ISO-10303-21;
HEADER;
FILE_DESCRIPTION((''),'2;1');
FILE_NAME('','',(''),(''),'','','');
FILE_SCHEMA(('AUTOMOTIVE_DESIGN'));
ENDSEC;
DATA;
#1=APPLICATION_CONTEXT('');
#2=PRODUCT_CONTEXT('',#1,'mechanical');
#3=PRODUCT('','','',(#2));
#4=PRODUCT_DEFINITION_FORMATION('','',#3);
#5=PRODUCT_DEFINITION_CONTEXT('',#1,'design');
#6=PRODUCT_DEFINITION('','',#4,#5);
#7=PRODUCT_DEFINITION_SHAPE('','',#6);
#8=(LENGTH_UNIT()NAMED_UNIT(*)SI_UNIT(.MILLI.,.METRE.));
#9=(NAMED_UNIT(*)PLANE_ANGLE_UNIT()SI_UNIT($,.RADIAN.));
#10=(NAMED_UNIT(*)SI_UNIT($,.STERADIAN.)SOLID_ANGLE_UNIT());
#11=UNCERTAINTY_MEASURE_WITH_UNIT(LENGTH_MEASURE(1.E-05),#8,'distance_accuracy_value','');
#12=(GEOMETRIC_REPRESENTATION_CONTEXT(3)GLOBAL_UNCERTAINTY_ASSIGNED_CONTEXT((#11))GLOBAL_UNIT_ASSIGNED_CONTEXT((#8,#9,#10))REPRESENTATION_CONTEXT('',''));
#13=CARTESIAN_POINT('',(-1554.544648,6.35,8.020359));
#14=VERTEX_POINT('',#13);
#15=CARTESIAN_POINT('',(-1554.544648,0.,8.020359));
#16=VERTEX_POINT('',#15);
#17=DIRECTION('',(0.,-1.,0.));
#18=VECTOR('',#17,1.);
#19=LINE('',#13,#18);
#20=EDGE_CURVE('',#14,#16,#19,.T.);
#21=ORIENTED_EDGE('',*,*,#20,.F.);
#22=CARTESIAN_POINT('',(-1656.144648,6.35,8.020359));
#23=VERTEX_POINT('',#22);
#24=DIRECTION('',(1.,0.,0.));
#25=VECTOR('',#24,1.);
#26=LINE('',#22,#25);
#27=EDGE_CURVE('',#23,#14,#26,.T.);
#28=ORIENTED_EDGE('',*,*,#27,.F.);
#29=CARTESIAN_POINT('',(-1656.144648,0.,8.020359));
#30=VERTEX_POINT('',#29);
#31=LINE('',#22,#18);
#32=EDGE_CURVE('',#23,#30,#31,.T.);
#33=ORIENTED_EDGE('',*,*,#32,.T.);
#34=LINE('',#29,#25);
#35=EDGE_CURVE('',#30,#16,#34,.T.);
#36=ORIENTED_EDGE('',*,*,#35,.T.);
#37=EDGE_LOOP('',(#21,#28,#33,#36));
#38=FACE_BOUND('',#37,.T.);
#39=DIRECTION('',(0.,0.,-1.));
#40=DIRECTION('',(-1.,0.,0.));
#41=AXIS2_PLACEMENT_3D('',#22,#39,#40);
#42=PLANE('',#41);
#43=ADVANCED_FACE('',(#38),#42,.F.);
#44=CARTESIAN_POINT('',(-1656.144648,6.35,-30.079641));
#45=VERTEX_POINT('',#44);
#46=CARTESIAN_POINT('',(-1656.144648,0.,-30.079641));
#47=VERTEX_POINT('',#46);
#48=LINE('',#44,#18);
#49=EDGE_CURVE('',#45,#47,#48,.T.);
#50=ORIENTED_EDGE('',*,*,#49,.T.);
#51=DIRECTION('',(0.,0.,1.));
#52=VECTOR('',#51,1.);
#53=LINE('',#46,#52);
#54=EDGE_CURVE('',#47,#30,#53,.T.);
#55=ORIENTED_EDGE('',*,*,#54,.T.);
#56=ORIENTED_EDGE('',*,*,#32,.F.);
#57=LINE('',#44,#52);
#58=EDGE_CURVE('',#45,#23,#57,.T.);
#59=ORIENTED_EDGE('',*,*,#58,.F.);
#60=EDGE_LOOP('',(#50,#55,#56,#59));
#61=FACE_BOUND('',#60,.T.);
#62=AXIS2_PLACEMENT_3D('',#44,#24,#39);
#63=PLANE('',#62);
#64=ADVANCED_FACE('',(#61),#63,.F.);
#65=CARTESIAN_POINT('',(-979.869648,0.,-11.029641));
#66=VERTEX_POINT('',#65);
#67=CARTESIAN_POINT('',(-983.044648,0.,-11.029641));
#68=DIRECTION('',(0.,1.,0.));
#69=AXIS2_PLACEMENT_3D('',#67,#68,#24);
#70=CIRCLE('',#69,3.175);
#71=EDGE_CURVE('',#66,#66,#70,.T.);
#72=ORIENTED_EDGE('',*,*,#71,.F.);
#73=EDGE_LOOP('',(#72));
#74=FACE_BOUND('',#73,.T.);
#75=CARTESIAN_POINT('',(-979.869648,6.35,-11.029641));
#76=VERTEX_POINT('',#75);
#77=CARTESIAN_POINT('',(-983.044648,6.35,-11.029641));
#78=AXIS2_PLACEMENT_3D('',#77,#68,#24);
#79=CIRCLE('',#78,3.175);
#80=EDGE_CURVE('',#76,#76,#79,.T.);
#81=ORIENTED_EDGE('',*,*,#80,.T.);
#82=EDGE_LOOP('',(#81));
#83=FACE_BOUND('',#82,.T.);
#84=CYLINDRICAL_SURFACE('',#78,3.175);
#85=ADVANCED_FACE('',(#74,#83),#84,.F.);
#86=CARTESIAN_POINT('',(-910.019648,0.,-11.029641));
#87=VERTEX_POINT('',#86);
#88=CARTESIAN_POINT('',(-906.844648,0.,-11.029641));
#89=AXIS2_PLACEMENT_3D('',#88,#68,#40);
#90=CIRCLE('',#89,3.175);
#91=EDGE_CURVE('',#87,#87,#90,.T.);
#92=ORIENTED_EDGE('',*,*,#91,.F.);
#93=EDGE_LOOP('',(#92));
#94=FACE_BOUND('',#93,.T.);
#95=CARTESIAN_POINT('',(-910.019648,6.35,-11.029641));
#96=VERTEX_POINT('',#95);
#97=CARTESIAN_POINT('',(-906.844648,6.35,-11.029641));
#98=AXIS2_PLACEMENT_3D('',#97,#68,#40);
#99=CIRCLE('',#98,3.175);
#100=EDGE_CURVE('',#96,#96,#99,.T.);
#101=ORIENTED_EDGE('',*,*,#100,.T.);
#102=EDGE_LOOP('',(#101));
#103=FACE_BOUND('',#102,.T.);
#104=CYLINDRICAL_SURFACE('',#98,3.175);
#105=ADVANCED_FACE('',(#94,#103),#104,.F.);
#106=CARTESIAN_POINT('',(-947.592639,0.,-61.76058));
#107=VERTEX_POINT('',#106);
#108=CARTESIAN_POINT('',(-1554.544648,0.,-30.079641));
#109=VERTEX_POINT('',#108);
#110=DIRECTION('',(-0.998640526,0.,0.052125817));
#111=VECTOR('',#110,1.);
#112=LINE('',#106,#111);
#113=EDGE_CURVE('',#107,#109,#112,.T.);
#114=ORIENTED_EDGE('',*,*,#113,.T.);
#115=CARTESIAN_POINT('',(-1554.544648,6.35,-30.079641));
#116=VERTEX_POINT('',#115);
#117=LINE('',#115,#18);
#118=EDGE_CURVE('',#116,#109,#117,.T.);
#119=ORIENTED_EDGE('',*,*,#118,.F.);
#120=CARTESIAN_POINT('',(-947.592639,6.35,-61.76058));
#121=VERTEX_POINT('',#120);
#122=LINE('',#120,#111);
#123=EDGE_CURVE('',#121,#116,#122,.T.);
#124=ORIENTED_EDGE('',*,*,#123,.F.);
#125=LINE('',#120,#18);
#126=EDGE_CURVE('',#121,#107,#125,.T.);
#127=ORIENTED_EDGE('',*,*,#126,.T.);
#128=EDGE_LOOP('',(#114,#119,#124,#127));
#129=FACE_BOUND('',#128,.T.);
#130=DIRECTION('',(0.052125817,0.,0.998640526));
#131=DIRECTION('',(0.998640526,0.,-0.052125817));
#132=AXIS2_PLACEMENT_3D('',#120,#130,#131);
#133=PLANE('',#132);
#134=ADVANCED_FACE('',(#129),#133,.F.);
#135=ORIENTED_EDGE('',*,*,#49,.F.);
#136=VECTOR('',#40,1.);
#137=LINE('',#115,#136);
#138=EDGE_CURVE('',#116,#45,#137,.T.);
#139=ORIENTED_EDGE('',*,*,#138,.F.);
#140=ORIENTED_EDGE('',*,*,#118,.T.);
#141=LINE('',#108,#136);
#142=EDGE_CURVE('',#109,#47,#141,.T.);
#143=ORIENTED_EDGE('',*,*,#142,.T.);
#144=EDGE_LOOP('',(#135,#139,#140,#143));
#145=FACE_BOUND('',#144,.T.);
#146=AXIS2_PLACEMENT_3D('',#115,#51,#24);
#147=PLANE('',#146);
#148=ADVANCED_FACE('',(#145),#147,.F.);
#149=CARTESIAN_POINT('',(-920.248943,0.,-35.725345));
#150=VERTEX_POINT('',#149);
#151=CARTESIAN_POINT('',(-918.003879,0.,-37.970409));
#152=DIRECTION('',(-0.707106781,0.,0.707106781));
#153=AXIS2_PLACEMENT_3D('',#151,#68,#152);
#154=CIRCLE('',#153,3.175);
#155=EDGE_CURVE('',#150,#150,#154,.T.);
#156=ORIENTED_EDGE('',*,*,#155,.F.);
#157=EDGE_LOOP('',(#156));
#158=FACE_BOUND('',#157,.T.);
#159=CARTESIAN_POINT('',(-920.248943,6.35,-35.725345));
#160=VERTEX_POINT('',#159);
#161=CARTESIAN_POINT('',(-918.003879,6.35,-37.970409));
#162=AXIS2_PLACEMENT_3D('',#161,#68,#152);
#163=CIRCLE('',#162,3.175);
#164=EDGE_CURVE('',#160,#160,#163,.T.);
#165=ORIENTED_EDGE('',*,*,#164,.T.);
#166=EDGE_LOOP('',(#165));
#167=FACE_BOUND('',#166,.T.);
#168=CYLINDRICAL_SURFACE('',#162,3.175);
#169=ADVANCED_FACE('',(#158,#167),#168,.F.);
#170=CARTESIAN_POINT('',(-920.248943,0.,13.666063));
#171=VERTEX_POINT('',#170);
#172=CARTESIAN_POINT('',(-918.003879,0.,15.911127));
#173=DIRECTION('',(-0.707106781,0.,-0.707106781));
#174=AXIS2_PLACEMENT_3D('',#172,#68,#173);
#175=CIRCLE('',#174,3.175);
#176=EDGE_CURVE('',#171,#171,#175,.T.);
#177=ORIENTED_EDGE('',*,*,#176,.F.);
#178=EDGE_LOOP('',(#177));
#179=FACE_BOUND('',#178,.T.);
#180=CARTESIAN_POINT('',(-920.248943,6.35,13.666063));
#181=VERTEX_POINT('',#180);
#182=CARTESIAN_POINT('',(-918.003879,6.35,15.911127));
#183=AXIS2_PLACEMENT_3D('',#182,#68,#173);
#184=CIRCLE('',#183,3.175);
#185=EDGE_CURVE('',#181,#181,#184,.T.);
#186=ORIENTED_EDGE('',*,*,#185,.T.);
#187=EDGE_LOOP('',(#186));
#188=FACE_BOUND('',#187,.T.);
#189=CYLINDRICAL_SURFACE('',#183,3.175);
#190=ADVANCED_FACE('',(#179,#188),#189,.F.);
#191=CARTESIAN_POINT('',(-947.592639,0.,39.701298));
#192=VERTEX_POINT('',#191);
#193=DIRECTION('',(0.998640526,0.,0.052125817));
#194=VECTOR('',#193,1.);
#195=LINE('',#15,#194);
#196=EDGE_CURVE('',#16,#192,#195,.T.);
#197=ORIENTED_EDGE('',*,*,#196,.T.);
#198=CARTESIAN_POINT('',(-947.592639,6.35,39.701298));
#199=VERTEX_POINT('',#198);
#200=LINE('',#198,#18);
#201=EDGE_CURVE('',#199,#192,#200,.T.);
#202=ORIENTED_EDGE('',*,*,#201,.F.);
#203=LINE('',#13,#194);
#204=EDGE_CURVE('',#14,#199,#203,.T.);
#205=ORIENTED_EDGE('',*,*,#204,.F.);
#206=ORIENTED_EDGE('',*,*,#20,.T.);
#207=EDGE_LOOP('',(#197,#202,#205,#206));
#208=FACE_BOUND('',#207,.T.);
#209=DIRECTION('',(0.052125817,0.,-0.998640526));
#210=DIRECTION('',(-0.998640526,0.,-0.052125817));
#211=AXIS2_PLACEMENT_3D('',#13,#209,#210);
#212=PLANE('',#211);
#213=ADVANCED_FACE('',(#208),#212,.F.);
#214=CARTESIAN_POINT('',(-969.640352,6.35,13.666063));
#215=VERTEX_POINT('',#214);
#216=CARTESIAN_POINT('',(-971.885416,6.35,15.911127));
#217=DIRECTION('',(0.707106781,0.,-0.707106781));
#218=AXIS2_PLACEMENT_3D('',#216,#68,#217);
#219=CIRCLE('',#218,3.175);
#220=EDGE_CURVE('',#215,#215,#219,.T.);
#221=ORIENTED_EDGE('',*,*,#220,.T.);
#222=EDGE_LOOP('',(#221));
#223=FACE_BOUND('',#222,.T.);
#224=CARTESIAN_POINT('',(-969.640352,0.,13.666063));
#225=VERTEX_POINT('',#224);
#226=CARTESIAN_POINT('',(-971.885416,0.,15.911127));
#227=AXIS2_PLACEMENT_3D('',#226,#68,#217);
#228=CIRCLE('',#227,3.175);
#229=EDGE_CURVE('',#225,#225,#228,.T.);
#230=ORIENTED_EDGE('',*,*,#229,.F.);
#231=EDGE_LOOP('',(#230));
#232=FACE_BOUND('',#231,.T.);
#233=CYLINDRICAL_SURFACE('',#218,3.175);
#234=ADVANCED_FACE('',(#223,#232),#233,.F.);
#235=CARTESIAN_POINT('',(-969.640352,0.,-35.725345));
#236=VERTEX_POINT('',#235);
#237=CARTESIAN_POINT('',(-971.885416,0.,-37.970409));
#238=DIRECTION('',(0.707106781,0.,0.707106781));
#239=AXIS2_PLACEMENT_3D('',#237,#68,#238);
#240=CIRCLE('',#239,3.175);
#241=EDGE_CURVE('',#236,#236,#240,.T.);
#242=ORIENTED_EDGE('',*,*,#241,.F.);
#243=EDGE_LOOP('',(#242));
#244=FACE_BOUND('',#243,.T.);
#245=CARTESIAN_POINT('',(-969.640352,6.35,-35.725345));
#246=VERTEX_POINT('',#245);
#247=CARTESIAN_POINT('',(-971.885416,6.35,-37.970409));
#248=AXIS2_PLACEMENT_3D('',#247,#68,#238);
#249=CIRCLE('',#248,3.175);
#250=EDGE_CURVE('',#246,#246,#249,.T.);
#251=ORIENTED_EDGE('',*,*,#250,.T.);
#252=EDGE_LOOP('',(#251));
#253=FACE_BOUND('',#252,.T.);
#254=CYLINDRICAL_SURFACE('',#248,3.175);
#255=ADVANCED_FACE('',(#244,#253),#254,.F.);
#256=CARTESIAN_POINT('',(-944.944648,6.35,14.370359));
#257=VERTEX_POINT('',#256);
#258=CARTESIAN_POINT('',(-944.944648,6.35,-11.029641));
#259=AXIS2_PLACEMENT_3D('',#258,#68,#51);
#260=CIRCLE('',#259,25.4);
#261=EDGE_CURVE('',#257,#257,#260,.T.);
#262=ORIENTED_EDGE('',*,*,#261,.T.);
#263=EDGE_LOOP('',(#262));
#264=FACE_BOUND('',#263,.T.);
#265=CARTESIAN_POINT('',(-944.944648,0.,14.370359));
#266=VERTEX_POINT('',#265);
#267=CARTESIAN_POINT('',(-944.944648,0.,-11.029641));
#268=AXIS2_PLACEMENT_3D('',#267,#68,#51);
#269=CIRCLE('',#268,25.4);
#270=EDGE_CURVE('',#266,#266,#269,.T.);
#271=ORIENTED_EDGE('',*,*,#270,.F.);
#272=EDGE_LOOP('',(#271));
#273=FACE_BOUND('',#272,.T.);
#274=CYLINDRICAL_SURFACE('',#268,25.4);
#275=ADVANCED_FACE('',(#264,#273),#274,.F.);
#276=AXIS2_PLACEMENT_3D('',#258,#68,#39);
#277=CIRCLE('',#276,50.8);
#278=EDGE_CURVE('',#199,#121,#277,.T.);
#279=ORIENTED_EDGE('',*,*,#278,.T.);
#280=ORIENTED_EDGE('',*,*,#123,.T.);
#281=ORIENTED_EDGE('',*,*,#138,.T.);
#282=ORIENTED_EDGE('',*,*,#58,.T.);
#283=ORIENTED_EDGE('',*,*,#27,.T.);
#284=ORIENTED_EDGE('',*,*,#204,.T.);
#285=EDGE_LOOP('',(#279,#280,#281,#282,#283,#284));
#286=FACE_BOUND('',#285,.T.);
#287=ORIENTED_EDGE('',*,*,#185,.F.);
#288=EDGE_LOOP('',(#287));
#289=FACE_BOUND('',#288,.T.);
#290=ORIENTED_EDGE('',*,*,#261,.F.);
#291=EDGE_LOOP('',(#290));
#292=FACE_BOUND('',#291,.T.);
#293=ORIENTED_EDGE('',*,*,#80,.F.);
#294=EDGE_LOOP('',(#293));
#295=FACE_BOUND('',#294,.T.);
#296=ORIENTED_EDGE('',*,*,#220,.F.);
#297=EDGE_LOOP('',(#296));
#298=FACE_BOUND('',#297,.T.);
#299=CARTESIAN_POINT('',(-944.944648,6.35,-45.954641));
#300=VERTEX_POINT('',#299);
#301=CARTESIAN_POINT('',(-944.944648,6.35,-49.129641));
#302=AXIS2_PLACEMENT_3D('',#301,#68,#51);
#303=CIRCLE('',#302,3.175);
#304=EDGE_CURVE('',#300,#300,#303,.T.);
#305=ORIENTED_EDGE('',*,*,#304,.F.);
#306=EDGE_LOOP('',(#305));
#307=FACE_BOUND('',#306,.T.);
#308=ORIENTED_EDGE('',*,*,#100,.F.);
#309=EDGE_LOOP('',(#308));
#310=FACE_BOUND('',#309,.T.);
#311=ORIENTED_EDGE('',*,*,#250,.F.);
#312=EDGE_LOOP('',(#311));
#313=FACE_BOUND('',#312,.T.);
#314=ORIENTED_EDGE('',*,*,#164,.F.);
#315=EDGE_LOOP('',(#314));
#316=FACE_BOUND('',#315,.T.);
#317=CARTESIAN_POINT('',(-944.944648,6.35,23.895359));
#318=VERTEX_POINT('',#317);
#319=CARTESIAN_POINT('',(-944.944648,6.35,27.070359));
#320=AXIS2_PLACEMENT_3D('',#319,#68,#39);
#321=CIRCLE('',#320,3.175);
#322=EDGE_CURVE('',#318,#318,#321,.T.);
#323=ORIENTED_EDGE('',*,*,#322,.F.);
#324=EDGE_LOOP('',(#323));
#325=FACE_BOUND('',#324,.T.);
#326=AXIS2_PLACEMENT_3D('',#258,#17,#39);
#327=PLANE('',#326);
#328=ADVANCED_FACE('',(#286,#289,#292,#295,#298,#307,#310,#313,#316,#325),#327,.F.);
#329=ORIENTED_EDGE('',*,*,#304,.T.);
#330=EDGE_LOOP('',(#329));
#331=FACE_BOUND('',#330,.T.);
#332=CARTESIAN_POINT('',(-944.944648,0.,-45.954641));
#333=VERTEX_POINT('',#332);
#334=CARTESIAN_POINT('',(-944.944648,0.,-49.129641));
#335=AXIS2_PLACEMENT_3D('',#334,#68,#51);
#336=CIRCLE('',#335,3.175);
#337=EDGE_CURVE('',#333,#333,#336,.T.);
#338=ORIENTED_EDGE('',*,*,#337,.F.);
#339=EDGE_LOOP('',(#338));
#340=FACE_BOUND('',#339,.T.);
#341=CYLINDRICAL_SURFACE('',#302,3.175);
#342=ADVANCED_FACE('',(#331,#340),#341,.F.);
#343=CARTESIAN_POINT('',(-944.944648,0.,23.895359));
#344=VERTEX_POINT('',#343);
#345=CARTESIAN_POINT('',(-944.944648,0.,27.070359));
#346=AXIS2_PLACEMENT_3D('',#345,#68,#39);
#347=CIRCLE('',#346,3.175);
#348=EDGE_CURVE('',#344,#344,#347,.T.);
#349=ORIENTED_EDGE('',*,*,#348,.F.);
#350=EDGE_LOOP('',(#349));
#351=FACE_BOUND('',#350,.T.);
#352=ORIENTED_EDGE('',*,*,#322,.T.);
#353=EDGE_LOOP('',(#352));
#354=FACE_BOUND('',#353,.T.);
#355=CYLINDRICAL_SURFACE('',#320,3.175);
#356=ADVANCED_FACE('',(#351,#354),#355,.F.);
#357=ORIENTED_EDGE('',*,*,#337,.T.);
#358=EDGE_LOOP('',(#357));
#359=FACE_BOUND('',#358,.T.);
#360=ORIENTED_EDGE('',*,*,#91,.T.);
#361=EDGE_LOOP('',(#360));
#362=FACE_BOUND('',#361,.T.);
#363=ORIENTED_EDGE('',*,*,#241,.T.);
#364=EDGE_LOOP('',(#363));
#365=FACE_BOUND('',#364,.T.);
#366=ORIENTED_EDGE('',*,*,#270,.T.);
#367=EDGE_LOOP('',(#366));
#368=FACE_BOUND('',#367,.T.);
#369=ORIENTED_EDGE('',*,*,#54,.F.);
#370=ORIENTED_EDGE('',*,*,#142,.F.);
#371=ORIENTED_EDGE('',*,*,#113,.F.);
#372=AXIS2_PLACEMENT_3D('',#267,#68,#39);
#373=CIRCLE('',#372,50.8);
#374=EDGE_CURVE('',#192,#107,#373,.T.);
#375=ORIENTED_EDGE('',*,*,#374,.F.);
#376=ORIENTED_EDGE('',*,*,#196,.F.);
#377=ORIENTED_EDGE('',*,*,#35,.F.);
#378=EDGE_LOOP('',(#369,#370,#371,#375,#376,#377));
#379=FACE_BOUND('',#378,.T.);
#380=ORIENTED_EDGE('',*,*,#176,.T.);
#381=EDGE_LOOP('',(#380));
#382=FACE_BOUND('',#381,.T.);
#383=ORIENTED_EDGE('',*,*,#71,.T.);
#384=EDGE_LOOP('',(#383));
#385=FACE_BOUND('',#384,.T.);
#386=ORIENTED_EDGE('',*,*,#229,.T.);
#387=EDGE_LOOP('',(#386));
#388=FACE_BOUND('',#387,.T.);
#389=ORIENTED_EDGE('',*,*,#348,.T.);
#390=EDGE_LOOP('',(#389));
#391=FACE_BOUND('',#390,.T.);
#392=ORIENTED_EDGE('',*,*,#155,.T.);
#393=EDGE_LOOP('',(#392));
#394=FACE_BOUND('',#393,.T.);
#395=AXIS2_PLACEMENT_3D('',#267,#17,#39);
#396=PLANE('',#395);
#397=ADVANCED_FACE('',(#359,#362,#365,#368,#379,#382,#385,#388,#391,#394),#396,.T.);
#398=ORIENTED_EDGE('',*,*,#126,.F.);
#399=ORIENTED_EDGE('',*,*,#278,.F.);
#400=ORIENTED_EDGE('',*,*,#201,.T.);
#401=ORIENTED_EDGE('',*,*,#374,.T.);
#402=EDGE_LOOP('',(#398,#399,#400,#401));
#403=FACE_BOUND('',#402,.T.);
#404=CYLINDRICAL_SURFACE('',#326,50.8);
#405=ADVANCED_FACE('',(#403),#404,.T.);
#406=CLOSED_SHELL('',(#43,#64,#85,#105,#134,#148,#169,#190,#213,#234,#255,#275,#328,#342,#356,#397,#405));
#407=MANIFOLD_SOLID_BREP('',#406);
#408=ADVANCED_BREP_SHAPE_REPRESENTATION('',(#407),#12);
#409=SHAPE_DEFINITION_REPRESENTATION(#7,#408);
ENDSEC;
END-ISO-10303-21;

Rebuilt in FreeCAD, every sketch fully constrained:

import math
import FreeCAD as App
import Part
import Sketcher
from FreeCAD import Vector
Q = App.Units.Quantity

doc = App.newDocument("Part")
params = doc.addObject("Spreadsheet::Sheet", "Params")
for row, (alias, value) in enumerate([
    ("sketch1_radius", "2 in"),
    ("sketch1_width", "4 in"),
    ("sketch1_height", "1.5 in"),
    ("pad1_length", "0.25 in"),
    ("sketch2_diameter", "2 in"),
    ("sketch3_diameter", "0.25 in"),
    ("hole_diameter", "0.25 in"),
], start=1):
    params.set(f"A{row}", alias)
    params.set(f"B{row}", "=" + value)
    params.setAlias(f"B{row}", alias)

body = doc.addObject("PartDesign::Body", "Body")

sketch1 = body.newObject("Sketcher::SketchObject", "Sketch")
sketch1.AttachmentSupport = (doc.getObject("XZ_Plane"), [""])
sketch1.MapMode = "FlatFace"
sketch1.addGeometry(Part.LineSegment(Vector(-948, -62, 0), Vector(-1555, -30, 0)), False)
sketch1.addGeometry(Part.LineSegment(Vector(-1555, -30, 0), Vector(-1656, -30, 0)), False)
sketch1.addGeometry(Part.LineSegment(Vector(-1656, -30, 0), Vector(-1656, 8, 0)), False)
sketch1.addGeometry(Part.LineSegment(Vector(-1656, 8, 0), Vector(-1555, 8, 0)), False)
sketch1.addGeometry(Part.LineSegment(Vector(-1555, 8, 0), Vector(-948, 40, 0)), False)
sketch1.addGeometry(Part.ArcOfCircle(Part.Circle(Vector(-945, -11, 0), Vector(0, 0, 1), 51), math.radians(-93), math.radians(93)), False)
sketch1.addConstraint(Sketcher.Constraint("Coincident", 0, 2, 1, 1))
sketch1.addConstraint(Sketcher.Constraint("Coincident", 1, 2, 2, 1))
sketch1.addConstraint(Sketcher.Constraint("Coincident", 2, 2, 3, 1))
sketch1.addConstraint(Sketcher.Constraint("Coincident", 3, 2, 4, 1))
sketch1.addConstraint(Sketcher.Constraint("Tangent", 4, 2, 5, 2))
sketch1.addConstraint(Sketcher.Constraint("Tangent", 5, 1, 0, 1))
sketch1.addConstraint(Sketcher.Constraint("Horizontal", 1))
sketch1.addConstraint(Sketcher.Constraint("Vertical", 2))
sketch1.addConstraint(Sketcher.Constraint("Horizontal", 3))
sketch1.addConstraint(Sketcher.Constraint("Vertical", 0, 2, 3, 2))
sketch1.addConstraint(Sketcher.Constraint("Vertical", 4, 2, 5, 1))
sketch1.addConstraint(Sketcher.Constraint("Radius", 5, Q("2 in")))
sketch1.addConstraint(Sketcher.Constraint("DistanceX", 1, 2, 1, 1, Q("4 in")))
sketch1.addConstraint(Sketcher.Constraint("DistanceY", 2, 1, 2, 2, Q("1.5 in")))
sketch1.addConstraint(Sketcher.Constraint("DistanceX", 0, 2, 5, 3, Q("24 in")))
sketch1.addConstraint(Sketcher.Constraint("DistanceY", 5, 3, -1, 1, 11.029641))
sketch1.addConstraint(Sketcher.Constraint("DistanceX", 4, 2, -1, 1, 947.592639))
sketch1.setExpression("Constraints[11]", "Params.sketch1_radius")
sketch1.setExpression("Constraints[12]", "Params.sketch1_width")
sketch1.setExpression("Constraints[13]", "Params.sketch1_height")
pad1 = body.newObject("PartDesign::Pad", "Pad")
pad1.Profile = sketch1
pad1.setExpression("Length", "Params.pad1_length")
pad1.Reversed = True

sketch2 = body.newObject("Sketcher::SketchObject", "Sketch001")
sketch2.AttachmentSupport = (doc.getObject("XZ_Plane"), [""])
sketch2.MapMode = "FlatFace"
sketch2.AttachmentOffset = App.Placement(Vector(0, 0, -0.25 * 25.4), App.Rotation())
sketch2.addGeometry(Part.Circle(Vector(-945, -11, 0), Vector(0, 0, 1), 25), False)
sketch2.addConstraint(Sketcher.Constraint("Diameter", 0, Q("2 in")))
sketch2.addConstraint(Sketcher.Constraint("DistanceY", 0, 3, -1, 1, 11.029641))
sketch2.addConstraint(Sketcher.Constraint("DistanceX", 0, 3, -1, 1, 944.944648))
sketch2.setExpression("Constraints[0]", "Params.sketch2_diameter")
pocket1 = body.newObject("PartDesign::Pocket", "Pocket")
pocket1.Profile = sketch2
pocket1.Type = "ThroughAll"
pocket1.Reversed = True

sketch3 = body.newObject("Sketcher::SketchObject", "Sketch002")
sketch3.AttachmentSupport = (doc.getObject("XZ_Plane"), [""])
sketch3.MapMode = "FlatFace"
sketch3.AttachmentOffset = App.Placement(Vector(0, 0, -0.25 * 25.4), App.Rotation())
sketch3.addGeometry(Part.Circle(Vector(-944.9, -49.1, 0), Vector(0, 0, 1), 3.2), False)
sketch3.addConstraint(Sketcher.Constraint("Diameter", 0, Q("0.25 in")))
sketch3.addConstraint(Sketcher.Constraint("DistanceY", 0, 3, -1, 1, 49.129641))
sketch3.addConstraint(Sketcher.Constraint("DistanceX", 0, 3, -1, 1, 944.944648))
sketch3.setExpression("Constraints[0]", "Params.sketch3_diameter")
doc.recompute()
hole = body.newObject("PartDesign::Hole", "Hole")
hole.Profile = sketch3
hole.ThreadType = "None"
hole.setExpression("Diameter", "Params.hole_diameter")
hole.DepthType = "ThroughAll"
hole.Reversed = True
doc.recompute()

datumline = body.newObject("PartDesign::Line", "DatumLine")
datumline.Placement = App.Placement(Vector(-944.944648, 0, -11.029641), App.Rotation(Vector(0, 0, 1), Vector(0, 1, 0)))
polarpattern = body.newObject("PartDesign::PolarPattern", "PolarPattern")
polarpattern.Originals = [hole]
polarpattern.Axis = (datumline, [""])
polarpattern.Angle = 360
polarpattern.Occurrences = 8
body.Tip = polarpattern

doc.recompute()
